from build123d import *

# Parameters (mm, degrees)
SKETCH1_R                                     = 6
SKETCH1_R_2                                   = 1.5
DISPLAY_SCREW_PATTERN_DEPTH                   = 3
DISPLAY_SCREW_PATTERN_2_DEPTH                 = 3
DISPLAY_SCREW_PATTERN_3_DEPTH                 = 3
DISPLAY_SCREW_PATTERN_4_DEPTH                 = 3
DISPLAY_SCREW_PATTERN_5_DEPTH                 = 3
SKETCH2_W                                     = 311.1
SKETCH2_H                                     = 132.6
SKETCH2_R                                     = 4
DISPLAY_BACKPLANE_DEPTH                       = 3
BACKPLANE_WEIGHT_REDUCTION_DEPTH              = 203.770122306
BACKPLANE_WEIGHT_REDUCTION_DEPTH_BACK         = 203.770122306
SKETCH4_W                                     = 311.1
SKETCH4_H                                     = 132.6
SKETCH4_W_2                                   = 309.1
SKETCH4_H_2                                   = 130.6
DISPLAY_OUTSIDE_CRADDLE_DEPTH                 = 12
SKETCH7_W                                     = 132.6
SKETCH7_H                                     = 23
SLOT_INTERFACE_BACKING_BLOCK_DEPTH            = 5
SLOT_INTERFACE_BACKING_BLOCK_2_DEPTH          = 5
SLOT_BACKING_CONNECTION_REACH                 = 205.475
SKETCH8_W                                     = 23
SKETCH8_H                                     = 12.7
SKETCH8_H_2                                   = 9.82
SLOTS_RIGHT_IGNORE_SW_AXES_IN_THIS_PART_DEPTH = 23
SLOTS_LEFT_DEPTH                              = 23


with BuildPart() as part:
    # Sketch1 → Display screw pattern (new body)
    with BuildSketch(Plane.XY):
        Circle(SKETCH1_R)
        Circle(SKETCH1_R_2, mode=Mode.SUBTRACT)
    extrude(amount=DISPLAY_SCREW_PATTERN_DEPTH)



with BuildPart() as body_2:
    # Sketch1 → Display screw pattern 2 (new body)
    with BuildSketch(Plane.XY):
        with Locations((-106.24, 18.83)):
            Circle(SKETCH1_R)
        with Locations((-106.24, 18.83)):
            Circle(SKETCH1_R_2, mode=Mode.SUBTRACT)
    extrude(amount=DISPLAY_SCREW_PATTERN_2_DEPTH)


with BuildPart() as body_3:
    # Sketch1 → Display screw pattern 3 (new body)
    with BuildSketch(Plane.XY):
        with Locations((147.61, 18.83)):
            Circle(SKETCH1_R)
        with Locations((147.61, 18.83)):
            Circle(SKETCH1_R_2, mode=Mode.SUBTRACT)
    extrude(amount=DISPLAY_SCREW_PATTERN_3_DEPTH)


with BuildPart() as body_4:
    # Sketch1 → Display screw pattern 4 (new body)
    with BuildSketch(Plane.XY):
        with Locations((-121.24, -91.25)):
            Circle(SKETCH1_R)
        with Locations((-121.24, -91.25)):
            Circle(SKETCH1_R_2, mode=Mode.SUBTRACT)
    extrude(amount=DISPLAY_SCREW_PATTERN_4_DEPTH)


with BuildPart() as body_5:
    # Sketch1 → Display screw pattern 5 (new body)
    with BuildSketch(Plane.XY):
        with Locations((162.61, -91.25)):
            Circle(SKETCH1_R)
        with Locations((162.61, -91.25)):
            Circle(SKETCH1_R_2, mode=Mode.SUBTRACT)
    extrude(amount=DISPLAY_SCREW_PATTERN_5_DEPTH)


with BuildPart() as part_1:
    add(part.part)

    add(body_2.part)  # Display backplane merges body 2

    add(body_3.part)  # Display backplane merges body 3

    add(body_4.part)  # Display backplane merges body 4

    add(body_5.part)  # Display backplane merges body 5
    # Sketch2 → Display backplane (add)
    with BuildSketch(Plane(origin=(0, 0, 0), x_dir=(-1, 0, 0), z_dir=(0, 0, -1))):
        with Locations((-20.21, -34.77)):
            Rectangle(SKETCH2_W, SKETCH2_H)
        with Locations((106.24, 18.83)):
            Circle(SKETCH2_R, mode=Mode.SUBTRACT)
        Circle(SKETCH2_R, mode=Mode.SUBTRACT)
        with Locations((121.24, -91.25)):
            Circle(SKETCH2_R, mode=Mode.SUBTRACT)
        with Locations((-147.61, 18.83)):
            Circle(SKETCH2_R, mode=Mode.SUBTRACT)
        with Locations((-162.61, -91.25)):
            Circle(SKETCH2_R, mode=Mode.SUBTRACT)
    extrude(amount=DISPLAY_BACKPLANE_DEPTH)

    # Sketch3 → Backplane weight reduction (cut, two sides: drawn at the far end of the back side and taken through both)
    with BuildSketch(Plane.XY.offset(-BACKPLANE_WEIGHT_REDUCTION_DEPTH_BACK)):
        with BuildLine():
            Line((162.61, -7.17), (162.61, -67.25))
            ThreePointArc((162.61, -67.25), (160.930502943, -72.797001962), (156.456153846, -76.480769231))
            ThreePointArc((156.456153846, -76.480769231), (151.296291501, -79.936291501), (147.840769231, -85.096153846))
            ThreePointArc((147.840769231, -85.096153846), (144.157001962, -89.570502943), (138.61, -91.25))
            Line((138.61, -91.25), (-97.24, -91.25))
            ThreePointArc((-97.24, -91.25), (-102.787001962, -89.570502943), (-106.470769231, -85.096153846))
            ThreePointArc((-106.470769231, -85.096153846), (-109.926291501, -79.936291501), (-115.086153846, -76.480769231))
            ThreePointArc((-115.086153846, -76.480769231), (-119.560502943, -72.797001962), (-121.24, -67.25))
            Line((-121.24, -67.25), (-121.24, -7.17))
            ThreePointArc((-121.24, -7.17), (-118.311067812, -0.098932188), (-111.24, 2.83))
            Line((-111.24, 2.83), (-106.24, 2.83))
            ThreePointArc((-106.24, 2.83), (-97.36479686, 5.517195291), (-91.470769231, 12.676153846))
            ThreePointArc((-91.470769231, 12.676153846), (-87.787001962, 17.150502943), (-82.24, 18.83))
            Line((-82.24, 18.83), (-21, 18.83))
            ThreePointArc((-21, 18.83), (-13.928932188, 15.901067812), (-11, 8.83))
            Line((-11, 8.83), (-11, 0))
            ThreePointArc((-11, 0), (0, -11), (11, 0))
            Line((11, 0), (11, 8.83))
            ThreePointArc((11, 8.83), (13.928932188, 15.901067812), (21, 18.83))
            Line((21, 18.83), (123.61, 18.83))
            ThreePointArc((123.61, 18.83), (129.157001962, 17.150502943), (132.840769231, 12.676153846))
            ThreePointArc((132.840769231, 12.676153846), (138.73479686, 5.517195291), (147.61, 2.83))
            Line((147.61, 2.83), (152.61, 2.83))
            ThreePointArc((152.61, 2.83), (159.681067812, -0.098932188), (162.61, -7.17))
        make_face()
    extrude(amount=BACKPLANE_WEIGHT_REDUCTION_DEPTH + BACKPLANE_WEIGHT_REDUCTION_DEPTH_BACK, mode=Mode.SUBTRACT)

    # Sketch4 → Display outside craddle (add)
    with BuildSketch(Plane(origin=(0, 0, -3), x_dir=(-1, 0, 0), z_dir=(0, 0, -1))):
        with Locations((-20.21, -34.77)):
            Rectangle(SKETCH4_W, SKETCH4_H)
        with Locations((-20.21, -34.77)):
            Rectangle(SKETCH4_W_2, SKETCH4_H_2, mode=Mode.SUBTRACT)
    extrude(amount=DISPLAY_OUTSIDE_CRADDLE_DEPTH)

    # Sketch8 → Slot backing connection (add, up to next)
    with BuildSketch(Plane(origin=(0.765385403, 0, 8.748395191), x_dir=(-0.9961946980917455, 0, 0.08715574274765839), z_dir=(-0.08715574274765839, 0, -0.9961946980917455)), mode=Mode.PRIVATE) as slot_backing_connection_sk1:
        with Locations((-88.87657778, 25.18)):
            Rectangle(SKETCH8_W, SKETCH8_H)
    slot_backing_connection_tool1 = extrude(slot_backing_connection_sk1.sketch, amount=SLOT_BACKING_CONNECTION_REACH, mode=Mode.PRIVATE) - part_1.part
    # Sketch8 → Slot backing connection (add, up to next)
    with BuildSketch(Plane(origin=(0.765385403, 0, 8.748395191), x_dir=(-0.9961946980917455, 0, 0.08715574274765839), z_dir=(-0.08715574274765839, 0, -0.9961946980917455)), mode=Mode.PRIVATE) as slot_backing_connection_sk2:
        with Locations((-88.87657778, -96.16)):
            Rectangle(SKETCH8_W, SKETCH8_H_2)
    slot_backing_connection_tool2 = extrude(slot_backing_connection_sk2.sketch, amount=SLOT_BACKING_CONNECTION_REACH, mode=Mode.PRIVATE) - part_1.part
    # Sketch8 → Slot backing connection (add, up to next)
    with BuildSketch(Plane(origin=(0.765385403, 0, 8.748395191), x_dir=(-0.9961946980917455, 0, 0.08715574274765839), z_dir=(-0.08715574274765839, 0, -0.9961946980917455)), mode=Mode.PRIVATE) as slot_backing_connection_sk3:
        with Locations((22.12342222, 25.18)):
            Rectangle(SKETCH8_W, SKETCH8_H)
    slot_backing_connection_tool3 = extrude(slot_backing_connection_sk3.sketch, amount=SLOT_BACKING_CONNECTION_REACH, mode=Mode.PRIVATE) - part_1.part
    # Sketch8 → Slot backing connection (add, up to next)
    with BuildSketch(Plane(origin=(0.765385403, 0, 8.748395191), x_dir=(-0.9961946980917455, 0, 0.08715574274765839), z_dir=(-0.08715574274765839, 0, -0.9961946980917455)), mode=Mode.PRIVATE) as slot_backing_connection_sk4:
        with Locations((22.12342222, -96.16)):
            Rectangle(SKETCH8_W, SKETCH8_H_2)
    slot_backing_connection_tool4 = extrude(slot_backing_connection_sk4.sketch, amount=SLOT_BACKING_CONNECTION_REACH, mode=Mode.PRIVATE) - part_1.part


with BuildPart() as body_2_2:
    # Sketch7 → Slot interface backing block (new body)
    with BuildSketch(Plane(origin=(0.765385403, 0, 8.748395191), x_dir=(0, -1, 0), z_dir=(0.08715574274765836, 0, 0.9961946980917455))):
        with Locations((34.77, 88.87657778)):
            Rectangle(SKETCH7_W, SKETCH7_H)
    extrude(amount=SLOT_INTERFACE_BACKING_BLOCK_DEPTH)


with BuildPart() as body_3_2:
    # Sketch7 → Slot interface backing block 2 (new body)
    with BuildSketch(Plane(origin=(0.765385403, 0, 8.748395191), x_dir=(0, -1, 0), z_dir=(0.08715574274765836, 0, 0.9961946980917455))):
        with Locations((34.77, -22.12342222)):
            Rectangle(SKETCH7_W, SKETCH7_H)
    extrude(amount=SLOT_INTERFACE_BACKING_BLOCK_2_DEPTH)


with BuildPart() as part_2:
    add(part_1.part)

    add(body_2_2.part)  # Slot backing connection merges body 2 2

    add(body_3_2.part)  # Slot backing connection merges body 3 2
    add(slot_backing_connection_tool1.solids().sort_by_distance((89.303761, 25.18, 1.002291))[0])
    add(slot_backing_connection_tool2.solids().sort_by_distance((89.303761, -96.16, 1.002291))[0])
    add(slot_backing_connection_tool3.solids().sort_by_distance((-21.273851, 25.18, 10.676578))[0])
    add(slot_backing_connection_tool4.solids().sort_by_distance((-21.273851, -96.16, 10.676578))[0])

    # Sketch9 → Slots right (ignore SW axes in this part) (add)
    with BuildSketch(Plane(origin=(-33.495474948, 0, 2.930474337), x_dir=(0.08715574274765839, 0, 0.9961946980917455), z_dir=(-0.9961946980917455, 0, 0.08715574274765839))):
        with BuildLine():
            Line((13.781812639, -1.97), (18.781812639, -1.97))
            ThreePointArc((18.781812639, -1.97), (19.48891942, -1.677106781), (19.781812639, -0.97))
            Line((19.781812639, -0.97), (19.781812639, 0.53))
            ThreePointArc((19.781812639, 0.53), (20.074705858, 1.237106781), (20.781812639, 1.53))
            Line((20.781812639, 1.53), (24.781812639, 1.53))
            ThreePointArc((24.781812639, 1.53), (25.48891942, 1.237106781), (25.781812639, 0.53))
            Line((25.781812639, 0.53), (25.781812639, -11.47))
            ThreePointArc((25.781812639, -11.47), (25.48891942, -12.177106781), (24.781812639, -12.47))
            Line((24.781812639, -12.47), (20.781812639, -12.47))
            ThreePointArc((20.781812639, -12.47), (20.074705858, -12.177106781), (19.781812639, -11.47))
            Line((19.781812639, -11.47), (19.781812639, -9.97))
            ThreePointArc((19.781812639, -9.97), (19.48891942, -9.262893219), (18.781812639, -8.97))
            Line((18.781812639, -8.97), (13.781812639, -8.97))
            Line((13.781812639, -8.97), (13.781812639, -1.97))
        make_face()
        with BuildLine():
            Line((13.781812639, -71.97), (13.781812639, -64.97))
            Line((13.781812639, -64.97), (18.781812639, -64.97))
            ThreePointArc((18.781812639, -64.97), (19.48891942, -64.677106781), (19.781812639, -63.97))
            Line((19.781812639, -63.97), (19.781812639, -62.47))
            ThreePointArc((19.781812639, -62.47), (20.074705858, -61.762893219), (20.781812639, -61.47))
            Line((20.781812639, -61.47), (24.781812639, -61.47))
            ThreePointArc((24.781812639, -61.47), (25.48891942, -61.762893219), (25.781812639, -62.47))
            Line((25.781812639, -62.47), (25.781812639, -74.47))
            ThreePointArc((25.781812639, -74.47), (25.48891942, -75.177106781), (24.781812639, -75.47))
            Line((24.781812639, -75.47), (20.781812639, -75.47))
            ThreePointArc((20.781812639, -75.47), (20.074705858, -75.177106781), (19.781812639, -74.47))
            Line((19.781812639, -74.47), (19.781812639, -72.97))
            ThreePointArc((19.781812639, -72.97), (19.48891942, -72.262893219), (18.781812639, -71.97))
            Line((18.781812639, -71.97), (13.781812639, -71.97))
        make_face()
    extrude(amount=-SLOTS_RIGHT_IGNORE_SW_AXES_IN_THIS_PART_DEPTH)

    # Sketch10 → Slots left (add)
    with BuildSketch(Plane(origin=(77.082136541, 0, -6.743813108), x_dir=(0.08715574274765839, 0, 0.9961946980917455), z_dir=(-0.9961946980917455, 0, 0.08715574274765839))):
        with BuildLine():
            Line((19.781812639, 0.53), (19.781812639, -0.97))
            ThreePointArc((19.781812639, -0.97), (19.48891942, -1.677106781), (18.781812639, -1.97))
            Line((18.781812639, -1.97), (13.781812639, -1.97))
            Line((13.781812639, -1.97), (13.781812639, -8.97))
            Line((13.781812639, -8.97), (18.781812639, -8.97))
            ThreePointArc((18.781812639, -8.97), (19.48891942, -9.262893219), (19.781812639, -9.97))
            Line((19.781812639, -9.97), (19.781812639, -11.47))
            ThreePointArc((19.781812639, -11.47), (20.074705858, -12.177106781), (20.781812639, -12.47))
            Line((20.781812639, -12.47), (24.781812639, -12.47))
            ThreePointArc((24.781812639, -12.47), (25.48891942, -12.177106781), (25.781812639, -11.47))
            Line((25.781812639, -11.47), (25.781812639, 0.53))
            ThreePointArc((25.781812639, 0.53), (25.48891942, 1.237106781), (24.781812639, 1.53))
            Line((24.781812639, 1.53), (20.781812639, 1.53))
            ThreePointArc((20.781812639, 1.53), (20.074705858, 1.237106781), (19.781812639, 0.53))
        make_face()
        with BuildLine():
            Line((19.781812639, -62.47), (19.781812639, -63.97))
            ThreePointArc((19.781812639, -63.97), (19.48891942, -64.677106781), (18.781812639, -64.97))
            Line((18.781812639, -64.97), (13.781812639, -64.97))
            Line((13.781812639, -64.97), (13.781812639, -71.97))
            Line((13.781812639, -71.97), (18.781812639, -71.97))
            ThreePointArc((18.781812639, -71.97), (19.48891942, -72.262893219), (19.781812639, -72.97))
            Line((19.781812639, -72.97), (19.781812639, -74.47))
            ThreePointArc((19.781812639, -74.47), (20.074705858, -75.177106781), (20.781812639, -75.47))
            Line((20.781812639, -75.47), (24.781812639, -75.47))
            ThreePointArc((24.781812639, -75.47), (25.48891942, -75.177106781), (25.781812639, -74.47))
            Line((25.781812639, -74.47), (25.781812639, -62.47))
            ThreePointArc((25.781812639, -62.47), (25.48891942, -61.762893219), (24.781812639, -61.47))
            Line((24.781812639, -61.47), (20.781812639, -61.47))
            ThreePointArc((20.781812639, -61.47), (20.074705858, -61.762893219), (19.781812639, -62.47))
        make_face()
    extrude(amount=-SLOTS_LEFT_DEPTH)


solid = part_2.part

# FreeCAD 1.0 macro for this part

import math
import FreeCAD as App
import Part
import Sketcher

V = App.Vector

doc = App.newDocument("Part")
body = doc.addObject("PartDesign::Body", "Body")

# Sketch on XY plane
sketch1 = body.newObject("Sketcher::SketchObject", "Sketch")
sketch1.AttachmentSupport = (doc.getObject("XY_Plane"), [""])
sketch1.MapMode = "FlatFace"
sketch1.addGeometry(Part.Circle(V(0, 0, 0), V(0, 0, 1), 6), False)
sketch1.addGeometry(Part.Circle(V(0, 0, 0), V(0, 0, 1), 1.5), False)
sketch1.addConstraint(Sketcher.Constraint("Coincident", 0, 3, -1, 1))
sketch1.addConstraint(Sketcher.Constraint("Coincident", 1, 3, -1, 1))
sketch1.addConstraint(Sketcher.Constraint("Diameter", 0, 12.0))
sketch1.addConstraint(Sketcher.Constraint("Diameter", 1, 3.0))
pad1 = body.newObject("PartDesign::Pad", "Pad")
pad1.Profile = sketch1
pad1.Length = 3
body2 = doc.addObject("PartDesign::Body", "Body001")

# Sketch on XY plane
sketch2 = body2.newObject("Sketcher::SketchObject", "Sketch001")
sketch2.AttachmentSupport = (doc.getObject("XY_Plane001"), [""])
sketch2.MapMode = "FlatFace"
sketch2.addGeometry(Part.Circle(V(-106.2, 18.8, 0), V(0, 0, 1), 6), False)
sketch2.addGeometry(Part.Circle(V(-106.2, 18.8, 0), V(0, 0, 1), 1.5), False)
sketch2.addConstraint(Sketcher.Constraint("Coincident", 1, 3, 0, 3))
sketch2.addConstraint(Sketcher.Constraint("Diameter", 0, 12.0))
sketch2.addConstraint(Sketcher.Constraint("Diameter", 1, 3.0))
sketch2.addConstraint(Sketcher.Constraint("DistanceX", 0, 3, -1, 1, 106.24))
sketch2.addConstraint(Sketcher.Constraint("DistanceY", -1, 1, 0, 3, 18.83))
pad2 = body2.newObject("PartDesign::Pad", "Pad001")
pad2.Profile = sketch2
pad2.Length = 3
body3 = doc.addObject("PartDesign::Body", "Body002")

# Sketch on XY plane
sketch3 = body3.newObject("Sketcher::SketchObject", "Sketch002")
sketch3.AttachmentSupport = (doc.getObject("XY_Plane002"), [""])
sketch3.MapMode = "FlatFace"
sketch3.addGeometry(Part.Circle(V(147.6, 18.8, 0), V(0, 0, 1), 6), False)
sketch3.addGeometry(Part.Circle(V(147.6, 18.8, 0), V(0, 0, 1), 1.5), False)
sketch3.addConstraint(Sketcher.Constraint("Coincident", 1, 3, 0, 3))
sketch3.addConstraint(Sketcher.Constraint("Diameter", 0, 12.0))
sketch3.addConstraint(Sketcher.Constraint("Diameter", 1, 3.0))
sketch3.addConstraint(Sketcher.Constraint("DistanceX", -1, 1, 0, 3, 147.61))
sketch3.addConstraint(Sketcher.Constraint("DistanceY", -1, 1, 0, 3, 18.83))
pad3 = body3.newObject("PartDesign::Pad", "Pad002")
pad3.Profile = sketch3
pad3.Length = 3
body4 = doc.addObject("PartDesign::Body", "Body003")

# Sketch on XY plane
sketch4 = body4.newObject("Sketcher::SketchObject", "Sketch003")
sketch4.AttachmentSupport = (doc.getObject("XY_Plane003"), [""])
sketch4.MapMode = "FlatFace"
sketch4.addGeometry(Part.Circle(V(-121.2, -91.2, 0), V(0, 0, 1), 6), False)
sketch4.addGeometry(Part.Circle(V(-121.2, -91.2, 0), V(0, 0, 1), 1.5), False)
sketch4.addConstraint(Sketcher.Constraint("Coincident", 1, 3, 0, 3))
sketch4.addConstraint(Sketcher.Constraint("Diameter", 0, 12.0))
sketch4.addConstraint(Sketcher.Constraint("Diameter", 1, 3.0))
sketch4.addConstraint(Sketcher.Constraint("DistanceX", 0, 3, -1, 1, 121.24))
sketch4.addConstraint(Sketcher.Constraint("DistanceY", 0, 3, -1, 1, 91.25))
pad4 = body4.newObject("PartDesign::Pad", "Pad003")
pad4.Profile = sketch4
pad4.Length = 3
body5 = doc.addObject("PartDesign::Body", "Body004")

# Sketch on XY plane
sketch5 = body5.newObject("Sketcher::SketchObject", "Sketch004")
sketch5.AttachmentSupport = (doc.getObject("XY_Plane004"), [""])
sketch5.MapMode = "FlatFace"
sketch5.addGeometry(Part.Circle(V(162.6, -91.2, 0), V(0, 0, 1), 6), False)
sketch5.addGeometry(Part.Circle(V(162.6, -91.2, 0), V(0, 0, 1), 1.5), False)
sketch5.addConstraint(Sketcher.Constraint("Coincident", 1, 3, 0, 3))
sketch5.addConstraint(Sketcher.Constraint("Diameter", 0, 12.0))
sketch5.addConstraint(Sketcher.Constraint("Diameter", 1, 3.0))
sketch5.addConstraint(Sketcher.Constraint("DistanceX", -1, 1, 0, 3, 162.61))
sketch5.addConstraint(Sketcher.Constraint("DistanceY", 0, 3, -1, 1, 91.25))
pad5 = body5.newObject("PartDesign::Pad", "Pad004")
pad5.Profile = sketch5
pad5.Length = 3
body.AllowCompound = True
doc.recompute()

boolean = body.newObject("PartDesign::Boolean", "Boolean")
boolean.Type = "Fuse"
boolean.addObjects([body2])
doc.recompute()

boolean2 = body.newObject("PartDesign::Boolean", "Boolean001")
boolean2.Type = "Fuse"
boolean2.addObjects([body3])
doc.recompute()

boolean3 = body.newObject("PartDesign::Boolean", "Boolean002")
boolean3.Type = "Fuse"
boolean3.addObjects([body4])
doc.recompute()

boolean4 = body.newObject("PartDesign::Boolean", "Boolean003")
boolean4.Type = "Fuse"
boolean4.addObjects([body5])

# Sketch on XY plane
sketch6 = body.newObject("Sketcher::SketchObject", "Sketch005")
sketch6.AttachmentSupport = (doc.getObject("XY_Plane"), [""])
sketch6.MapMode = "FlatFace"
sketch6.addGeometry(Part.LineSegment(V(175.8, 31.5, 0), V(175.8, -101.1, 0)), False)
sketch6.addGeometry(Part.LineSegment(V(175.8, -101.1, 0), V(-135.3, -101.1, 0)), False)
sketch6.addGeometry(Part.LineSegment(V(-135.3, -101.1, 0), V(-135.3, 31.5, 0)), False)
sketch6.addGeometry(Part.LineSegment(V(-135.3, 31.5, 0), V(175.8, 31.5, 0)), False)
sketch6.addGeometry(Part.Circle(V(162.6, -91.2, 0), V(0, 0, 1), 4), False)
sketch6.addGeometry(Part.Circle(V(-121.2, -91.2, 0), V(0, 0, 1), 4), False)
sketch6.addGeometry(Part.Circle(V(147.6, 18.8, 0), V(0, 0, 1), 4), False)
sketch6.addGeometry(Part.Circle(V(0, 0, 0), V(0, 0, 1), 4), False)
sketch6.addGeometry(Part.Circle(V(-106.2, 18.8, 0), V(0, 0, 1), 4), False)
sketch6.addConstraint(Sketcher.Constraint("Coincident", 0, 2, 1, 1))
sketch6.addConstraint(Sketcher.Constraint("Coincident", 1, 2, 2, 1))
sketch6.addConstraint(Sketcher.Constraint("Coincident", 2, 2, 3, 1))
sketch6.addConstraint(Sketcher.Constraint("Coincident", 3, 2, 0, 1))
sketch6.addConstraint(Sketcher.Constraint("Vertical", 0))
sketch6.addConstraint(Sketcher.Constraint("Horizontal", 1))
sketch6.addConstraint(Sketcher.Constraint("Vertical", 2))
sketch6.addConstraint(Sketcher.Constraint("Horizontal", 3))
sketch6.addConstraint(Sketcher.Constraint("Coincident", 7, 3, -1, 1))
sketch6.addConstraint(Sketcher.Constraint("Equal", 4, 5))
sketch6.addConstraint(Sketcher.Constraint("Equal", 5, 6))
sketch6.addConstraint(Sketcher.Constraint("Equal", 6, 7))
sketch6.addConstraint(Sketcher.Constraint("Equal", 7, 8))
sketch6.addConstraint(Sketcher.Constraint("Horizontal", 4, 3, 5, 3))
sketch6.addConstraint(Sketcher.Constraint("Horizontal", 6, 3, 8, 3))
sketch6.addConstraint(Sketcher.Constraint("Diameter", 4, 8.0))
sketch6.addConstraint(Sketcher.Constraint("DistanceX", 1, 2, 1, 1, 311.1))
sketch6.addConstraint(Sketcher.Constraint("DistanceY", 0, 2, 0, 1, 132.6))
sketch6.addConstraint(Sketcher.Constraint("DistanceX", 6, 3, 4, 3, 15.0))
sketch6.addConstraint(Sketcher.Constraint("DistanceX", 5, 3, 8, 3, 15.0))
sketch6.addConstraint(Sketcher.Constraint("DistanceX", 5, 3, 0, 2, 297.0))
sketch6.addConstraint(Sketcher.Constraint("DistanceY", 0, 2, 6, 3, 119.9))
sketch6.addConstraint(Sketcher.Constraint("DistanceX", -1, 1, 4, 3, 162.61))
sketch6.addConstraint(Sketcher.Constraint("DistanceY", 4, 3, -1, 1, 91.25))
sketch6.addConstraint(Sketcher.Constraint("DistanceX", 5, 3, -1, 1, 121.24))
sketch6.addConstraint(Sketcher.Constraint("DistanceY", -1, 1, 6, 3, 18.83))
pad6 = body.newObject("PartDesign::Pad", "Pad005")
pad6.Profile = sketch6
pad6.Length = 3
pad6.Reversed = True

# Sketch on XY plane
sketch7 = body.newObject("Sketcher::SketchObject", "Sketch006")
sketch7.AttachmentSupport = (doc.getObject("XY_Plane"), [""])
sketch7.MapMode = "FlatFace"
sketch7.addGeometry(Part.LineSegment(V(163, -67, 0), V(163, -7, 0)), False)
sketch7.addGeometry(Part.ArcOfCircle(Part.Circle(V(153, -7, 0), V(0, 0, 1), 10), math.radians(0), math.radians(90)), False)
sketch7.addGeometry(Part.LineSegment(V(153, 3, 0), V(148, 3, 0)), False)
sketch7.addGeometry(Part.ArcOfCircle(Part.Circle(V(148, 19, 0), V(0, 0, 1), 16), math.radians(-157), math.radians(-90)), False)
sketch7.addGeometry(Part.ArcOfCircle(Part.Circle(V(124, 9, 0), V(0, 0, 1), 10), math.radians(23), math.radians(90)), False)
sketch7.addGeometry(Part.LineSegment(V(124, 19, 0), V(21, 19, 0)), False)
sketch7.addGeometry(Part.ArcOfCircle(Part.Circle(V(21, 9, 0), V(0, 0, 1), 10), math.radians(90), math.radians(180)), False)
sketch7.addGeometry(Part.LineSegment(V(11, 9, 0), V(11, 0, 0)), False)
sketch7.addGeometry(Part.ArcOfCircle(Part.Circle(V(0, 0, 0), V(0, 0, 1), 11), math.radians(180), math.radians(360)), False)
sketch7.addGeometry(Part.LineSegment(V(-11, 0, 0), V(-11, 9, 0)), False)
sketch7.addGeometry(Part.ArcOfCircle(Part.Circle(V(-21, 9, 0), V(0, 0, 1), 10), math.radians(0), math.radians(90)), False)
sketch7.addGeometry(Part.LineSegment(V(-21, 19, 0), V(-82, 19, 0)), False)
sketch7.addGeometry(Part.ArcOfCircle(Part.Circle(V(-82, 9, 0), V(0, 0, 1), 10), math.radians(90), math.radians(157)), False)
sketch7.addGeometry(Part.ArcOfCircle(Part.Circle(V(-106, 19, 0), V(0, 0, 1), 16), math.radians(-90), math.radians(-23)), False)
sketch7.addGeometry(Part.LineSegment(V(-106, 3, 0), V(-111, 3, 0)), False)
sketch7.addGeometry(Part.ArcOfCircle(Part.Circle(V(-111, -7, 0), V(0, 0, 1), 10), math.radians(90), math.radians(180)), False)
sketch7.addGeometry(Part.LineSegment(V(-121, -7, 0), V(-121, -67, 0)), False)
sketch7.addGeometry(Part.ArcOfCircle(Part.Circle(V(-111, -67, 0), V(0, 0, 1), 10), math.radians(-180), math.radians(-113)), False)
sketch7.addGeometry(Part.ArcOfCircle(Part.Circle(V(-121, -91, 0), V(0, 0, 1), 16), math.radians(23), math.radians(67)), False)
sketch7.addGeometry(Part.ArcOfCircle(Part.Circle(V(-97, -81, 0), V(0, 0, 1), 10), math.radians(-157), math.radians(-90)), False)
sketch7.addGeometry(Part.LineSegment(V(-97, -91, 0), V(139, -91, 0)), False)
sketch7.addGeometry(Part.ArcOfCircle(Part.Circle(V(139, -81, 0), V(0, 0, 1), 10), math.radians(-90), math.radians(-23)), False)
sketch7.addGeometry(Part.ArcOfCircle(Part.Circle(V(163, -91, 0), V(0, 0, 1), 16), math.radians(113), math.radians(157)), False)
sketch7.addGeometry(Part.ArcOfCircle(Part.Circle(V(153, -67, 0), V(0, 0, 1), 10), math.radians(-67), math.radians(0)), False)
sketch7.addConstraint(Sketcher.Constraint("Tangent", 0, 2, 1, 1))
sketch7.addConstraint(Sketcher.Constraint("Tangent", 1, 2, 2, 1))
sketch7.addConstraint(Sketcher.Constraint("Tangent", 2, 2, 3, 2))
sketch7.addConstraint(Sketcher.Constraint("Tangent", 3, 1, 4, 1))
sketch7.addConstraint(Sketcher.Constraint("Tangent", 4, 2, 5, 1))
sketch7.addConstraint(Sketcher.Constraint("Tangent", 5, 2, 6, 1))
sketch7.addConstraint(Sketcher.Constraint("Tangent", 6, 2, 7, 1))
sketch7.addConstraint(Sketcher.Constraint("Tangent", 7, 2, 8, 2))
sketch7.addConstraint(Sketcher.Constraint("Tangent", 8, 1, 9, 1))
sketch7.addConstraint(Sketcher.Constraint("Tangent", 9, 2, 10, 1))
sketch7.addConstraint(Sketcher.Constraint("Tangent", 10, 2, 11, 1))
sketch7.addConstraint(Sketcher.Constraint("Tangent", 11, 2, 12, 1))
sketch7.addConstraint(Sketcher.Constraint("Tangent", 12, 2, 13, 2))
sketch7.addConstraint(Sketcher.Constraint("Tangent", 13, 1, 14, 1))
sketch7.addConstraint(Sketcher.Constraint("Tangent", 14, 2, 15, 1))
sketch7.addConstraint(Sketcher.Constraint("Tangent", 15, 2, 16, 1))
sketch7.addConstraint(Sketcher.Constraint("Tangent", 16, 2, 17, 1))
sketch7.addConstraint(Sketcher.Constraint("Tangent", 17, 2, 18, 2))
sketch7.addConstraint(Sketcher.Constraint("Tangent", 18, 1, 19, 1))
sketch7.addConstraint(Sketcher.Constraint("Tangent", 19, 2, 20, 1))
sketch7.addConstraint(Sketcher.Constraint("Tangent", 20, 2, 21, 1))
sketch7.addConstraint(Sketcher.Constraint("Tangent", 21, 2, 22, 2))
sketch7.addConstraint(Sketcher.Constraint("Tangent", 22, 1, 23, 1))
sketch7.addConstraint(Sketcher.Constraint("Tangent", 23, 2, 0, 1))
sketch7.addConstraint(Sketcher.Constraint("Vertical", 0))
sketch7.addConstraint(Sketcher.Constraint("Horizontal", 2))
sketch7.addConstraint(Sketcher.Constraint("Horizontal", 5))
sketch7.addConstraint(Sketcher.Constraint("Vertical", 7))
sketch7.addConstraint(Sketcher.Constraint("Vertical", 9))
sketch7.addConstraint(Sketcher.Constraint("Horizontal", 11))
sketch7.addConstraint(Sketcher.Constraint("Horizontal", 14))
sketch7.addConstraint(Sketcher.Constraint("Vertical", 16))
sketch7.addConstraint(Sketcher.Constraint("Horizontal", 20))
sketch7.addConstraint(Sketcher.Constraint("Coincident", 8, 3, -1, 1))
sketch7.addConstraint(Sketcher.Constraint("Equal", 1, 4))
sketch7.addConstraint(Sketcher.Constraint("Equal", 4, 6))
sketch7.addConstraint(Sketcher.Constraint("Equal", 6, 10))
sketch7.addConstraint(Sketcher.Constraint("Equal", 10, 12))
sketch7.addConstraint(Sketcher.Constraint("Equal", 3, 13))
sketch7.addConstraint(Sketcher.Constraint("Equal", 12, 15))
sketch7.addConstraint(Sketcher.Constraint("Equal", 15, 17))
sketch7.addConstraint(Sketcher.Constraint("Equal", 13, 18))
sketch7.addConstraint(Sketcher.Constraint("Equal", 17, 19))
sketch7.addConstraint(Sketcher.Constraint("Equal", 19, 21))
sketch7.addConstraint(Sketcher.Constraint("Equal", 18, 22))
sketch7.addConstraint(Sketcher.Constraint("Equal", 21, 23))
sketch7.addConstraint(Sketcher.Constraint("Horizontal", 6, 3, 10, 3))
sketch7.addConstraint(Sketcher.Constraint("Horizontal", 3, 3, 13, 3))
sketch7.addConstraint(Sketcher.Constraint("Horizontal", 18, 3, 22, 3))
sketch7.addConstraint(Sketcher.Constraint("Horizontal", 17, 3, 23, 3))
sketch7.addConstraint(Sketcher.Constraint("Horizontal", 13, 3, 4, 2))
sketch7.addConstraint(Sketcher.Constraint("Horizontal", 22, 3, 19, 2))
sketch7.addConstraint(Sketcher.Constraint("Vertical", 22, 3, 0, 2))
sketch7.addConstraint(Sketcher.Constraint("Equal", 2, 14))
sketch7.addConstraint(Sketcher.Constraint("Radius", 1, 10.0))
sketch7.addConstraint(Sketcher.Constraint("Radius", 3, 16.0))
sketch7.addConstraint(Sketcher.Constraint("Radius", 8, 11.0))
sketch7.addConstraint(Sketcher.Constraint("DistanceX", 2, 2, 2, 1, 5.0))
sketch7.addConstraint(Sketcher.Constraint("DistanceX", 5, 2, 5, 1, 102.61))
sketch7.addConstraint(Sketcher.Constraint("DistanceX", 11, 2, 11, 1, 61.24))
sketch7.addConstraint(Sketcher.Constraint("DistanceY", 0, 1, 0, 2, 60.08))
sketch7.addConstraint(Sketcher.Constraint("DistanceY", 7, 2, 7, 1, 8.83))
pocket1 = body.newObject("PartDesign::Pocket", "Pocket")
pocket1.Profile = sketch7
pocket1.Type = "ThroughAll"
pocket1.Midplane = True

# Sketch on XY plane
sketch8 = body.newObject("Sketcher::SketchObject", "Sketch007")
sketch8.AttachmentSupport = (doc.getObject("XY_Plane"), [""])
sketch8.MapMode = "FlatFace"
sketch8.AttachmentOffset = App.Placement(V(0, 0, -3), App.Rotation())
sketch8.addGeometry(Part.LineSegment(V(176, 32, 0), V(176, -101, 0)), False)
sketch8.addGeometry(Part.LineSegment(V(176, -101, 0), V(-135, -101, 0)), False)
sketch8.addGeometry(Part.LineSegment(V(-135, -101, 0), V(-135, 32, 0)), False)
sketch8.addGeometry(Part.LineSegment(V(-135, 32, 0), V(176, 32, 0)), False)
sketch8.addGeometry(Part.LineSegment(V(-134, -100, 0), V(175, -100, 0)), False)
sketch8.addGeometry(Part.LineSegment(V(175, -100, 0), V(175, 31, 0)), False)
sketch8.addGeometry(Part.LineSegment(V(175, 31, 0), V(-134, 31, 0)), False)
sketch8.addGeometry(Part.LineSegment(V(-134, 31, 0), V(-134, -100, 0)), False)
sketch8.addConstraint(Sketcher.Constraint("Coincident", 0, 2, 1, 1))
sketch8.addConstraint(Sketcher.Constraint("Coincident", 1, 2, 2, 1))
sketch8.addConstraint(Sketcher.Constraint("Coincident", 2, 2, 3, 1))
sketch8.addConstraint(Sketcher.Constraint("Coincident", 3, 2, 0, 1))
sketch8.addConstraint(Sketcher.Constraint("Coincident", 4, 2, 5, 1))
sketch8.addConstraint(Sketcher.Constraint("Coincident", 5, 2, 6, 1))
sketch8.addConstraint(Sketcher.Constraint("Coincident", 6, 2, 7, 1))
sketch8.addConstraint(Sketcher.Constraint("Coincident", 7, 2, 4, 1))
sketch8.addConstraint(Sketcher.Constraint("Vertical", 0))
sketch8.addConstraint(Sketcher.Constraint("Horizontal", 1))
sketch8.addConstraint(Sketcher.Constraint("Vertical", 2))
sketch8.addConstraint(Sketcher.Constraint("Horizontal", 3))
sketch8.addConstraint(Sketcher.Constraint("Horizontal", 4))
sketch8.addConstraint(Sketcher.Constraint("Vertical", 5))
sketch8.addConstraint(Sketcher.Constraint("Horizontal", 6))
sketch8.addConstraint(Sketcher.Constraint("Vertical", 7))
sketch8.addConstraint(Sketcher.Constraint("DistanceX", 1, 2, 1, 1, 311.1))
sketch8.addConstraint(Sketcher.Constraint("DistanceX", 4, 1, 4, 2, 309.1))
sketch8.addConstraint(Sketcher.Constraint("DistanceY", 0, 2, 0, 1, 132.6))
sketch8.addConstraint(Sketcher.Constraint("DistanceY", 5, 1, 5, 2, 130.6))
sketch8.addConstraint(Sketcher.Constraint("DistanceX", 4, 2, 0, 2, 1.0))
sketch8.addConstraint(Sketcher.Constraint("DistanceY", 0, 2, 4, 2, 1.0))
sketch8.addConstraint(Sketcher.Constraint("DistanceX", -1, 1, 0, 2, 175.76))
sketch8.addConstraint(Sketcher.Constraint("DistanceY", 0, 2, -1, 1, 101.07))
pad7 = body.newObject("PartDesign::Pad", "Pad006")
pad7.Profile = sketch8
pad7.Length = 12
pad7.Reversed = True
body6 = doc.addObject("PartDesign::Body", "Body005")

# Sketch on an angled plane
sketch9 = body6.newObject("Sketcher::SketchObject", "Sketch008")
sketch9.Placement = App.Placement(V(0.765385, 0, 8.748395), App.Rotation(V(0, -1, 0), V(0.996194698, 0, -0.087155743), V(0.087155743, 0, 0.996194698), "ZXY"))
sketch9.addGeometry(Part.LineSegment(V(-32, 100, 0), V(-32, 77, 0)), False)
sketch9.addGeometry(Part.LineSegment(V(-32, 77, 0), V(101, 77, 0)), False)
sketch9.addGeometry(Part.LineSegment(V(101, 77, 0), V(101, 100, 0)), False)
sketch9.addGeometry(Part.LineSegment(V(101, 100, 0), V(-32, 100, 0)), False)
sketch9.addConstraint(Sketcher.Constraint("Coincident", 0, 2, 1, 1))
sketch9.addConstraint(Sketcher.Constraint("Coincident", 1, 2, 2, 1))
sketch9.addConstraint(Sketcher.Constraint("Coincident", 2, 2, 3, 1))
sketch9.addConstraint(Sketcher.Constraint("Coincident", 3, 2, 0, 1))
sketch9.addConstraint(Sketcher.Constraint("Vertical", 0))
sketch9.addConstraint(Sketcher.Constraint("Horizontal", 1))
sketch9.addConstraint(Sketcher.Constraint("Vertical", 2))
sketch9.addConstraint(Sketcher.Constraint("Horizontal", 3))
sketch9.addConstraint(Sketcher.Constraint("DistanceY", 0, 2, 0, 1, 23.0))
sketch9.addConstraint(Sketcher.Constraint("DistanceX", 1, 1, 1, 2, 132.6))
sketch9.addConstraint(Sketcher.Constraint("DistanceX", 0, 2, -1, 1, 31.53))
sketch9.addConstraint(Sketcher.Constraint("DistanceY", -1, 1, 0, 2, 77.376578))
pad8 = body6.newObject("PartDesign::Pad", "Pad007")
pad8.Profile = sketch9
pad8.Length = 5
body7 = doc.addObject("PartDesign::Body", "Body006")

# Sketch on an angled plane
sketch10 = body7.newObject("Sketcher::SketchObject", "Sketch009")
sketch10.Placement = App.Placement(V(0.765385, 0, 8.748395), App.Rotation(V(0, -1, 0), V(0.996194698, 0, -0.087155743), V(0.087155743, 0, 0.996194698), "ZXY"))
sketch10.addGeometry(Part.LineSegment(V(-32, -11, 0), V(-32, -34, 0)), False)
sketch10.addGeometry(Part.LineSegment(V(-32, -34, 0), V(101, -34, 0)), False)
sketch10.addGeometry(Part.LineSegment(V(101, -34, 0), V(101, -11, 0)), False)
sketch10.addGeometry(Part.LineSegment(V(101, -11, 0), V(-32, -11, 0)), False)
sketch10.addConstraint(Sketcher.Constraint("Coincident", 0, 2, 1, 1))
sketch10.addConstraint(Sketcher.Constraint("Coincident", 1, 2, 2, 1))
sketch10.addConstraint(Sketcher.Constraint("Coincident", 2, 2, 3, 1))
sketch10.addConstraint(Sketcher.Constraint("Coincident", 3, 2, 0, 1))
sketch10.addConstraint(Sketcher.Constraint("Vertical", 0))
sketch10.addConstraint(Sketcher.Constraint("Horizontal", 1))
sketch10.addConstraint(Sketcher.Constraint("Vertical", 2))
sketch10.addConstraint(Sketcher.Constraint("Horizontal", 3))
sketch10.addConstraint(Sketcher.Constraint("DistanceY", 0, 2, 0, 1, 23.0))
sketch10.addConstraint(Sketcher.Constraint("DistanceX", 1, 1, 1, 2, 132.6))
sketch10.addConstraint(Sketcher.Constraint("DistanceX", 0, 2, -1, 1, 31.53))
sketch10.addConstraint(Sketcher.Constraint("DistanceY", 0, 2, -1, 1, 33.623422))
pad9 = body7.newObject("PartDesign::Pad", "Pad008")
pad9.Profile = sketch10
pad9.Length = 5
body.AllowCompound = True
doc.recompute()

boolean5 = body.newObject("PartDesign::Boolean", "Boolean004")
boolean5.Type = "Fuse"
boolean5.addObjects([body6])
doc.recompute()

boolean6 = body.newObject("PartDesign::Boolean", "Boolean005")
boolean6.Type = "Fuse"
boolean6.addObjects([body7])

# Sketch on an angled plane
sketch11 = body.newObject("Sketcher::SketchObject", "Sketch010")
sketch11.Placement = App.Placement(V(0.765385, 0, 8.748395), App.Rotation(V(-0.996194698, 0, 0.087155743), V(0, 1, 0), V(-0.087155743, 0, -0.996194698), "ZXY"))
sketch11.addGeometry(Part.LineSegment(V(-100, 32, 0), V(-100, 19, 0)), False)
sketch11.addGeometry(Part.LineSegment(V(-100, 19, 0), V(-77, 19, 0)), False)
sketch11.addGeometry(Part.LineSegment(V(-77, 19, 0), V(-77, 32, 0)), False)
sketch11.addGeometry(Part.LineSegment(V(-77, 32, 0), V(-100, 32, 0)), False)
sketch11.addConstraint(Sketcher.Constraint("Coincident", 0, 2, 1, 1))
sketch11.addConstraint(Sketcher.Constraint("Coincident", 1, 2, 2, 1))
sketch11.addConstraint(Sketcher.Constraint("Coincident", 2, 2, 3, 1))
sketch11.addConstraint(Sketcher.Constraint("Coincident", 3, 2, 0, 1))
sketch11.addConstraint(Sketcher.Constraint("Vertical", 0))
sketch11.addConstraint(Sketcher.Constraint("Horizontal", 1))
sketch11.addConstraint(Sketcher.Constraint("Vertical", 2))
sketch11.addConstraint(Sketcher.Constraint("Horizontal", 3))
sketch11.addConstraint(Sketcher.Constraint("DistanceX", 1, 1, 1, 2, 23.0))
sketch11.addConstraint(Sketcher.Constraint("DistanceY", 0, 2, 0, 1, 12.7))
sketch11.addConstraint(Sketcher.Constraint("DistanceY", -1, 1, 0, 2, 18.83))
sketch11.addConstraint(Sketcher.Constraint("DistanceX", 0, 2, -1, 1, 100.376578))
pad10 = body.newObject("PartDesign::Pad", "Pad009")
pad10.Profile = sketch11
pad10.Length = 2.012239

# Sketch on an angled plane
sketch12 = body.newObject("Sketcher::SketchObject", "Sketch011")
sketch12.Placement = App.Placement(V(0.765385, 0, 8.748395), App.Rotation(V(-0.996194698, 0, 0.087155743), V(0, 1, 0), V(-0.087155743, 0, -0.996194698), "ZXY"))
sketch12.addGeometry(Part.LineSegment(V(-100, -91, 0), V(-100, -101, 0)), False)
sketch12.addGeometry(Part.LineSegment(V(-100, -101, 0), V(-77, -101, 0)), False)
sketch12.addGeometry(Part.LineSegment(V(-77, -101, 0), V(-77, -91, 0)), False)
sketch12.addGeometry(Part.LineSegment(V(-77, -91, 0), V(-100, -91, 0)), False)
sketch12.addConstraint(Sketcher.Constraint("Coincident", 0, 2, 1, 1))
sketch12.addConstraint(Sketcher.Constraint("Coincident", 1, 2, 2, 1))
sketch12.addConstraint(Sketcher.Constraint("Coincident", 2, 2, 3, 1))
sketch12.addConstraint(Sketcher.Constraint("Coincident", 3, 2, 0, 1))
sketch12.addConstraint(Sketcher.Constraint("Vertical", 0))
sketch12.addConstraint(Sketcher.Constraint("Horizontal", 1))
sketch12.addConstraint(Sketcher.Constraint("Vertical", 2))
sketch12.addConstraint(Sketcher.Constraint("Horizontal", 3))
sketch12.addConstraint(Sketcher.Constraint("DistanceX", 1, 1, 1, 2, 23.0))
sketch12.addConstraint(Sketcher.Constraint("DistanceY", 0, 2, 0, 1, 9.82))
sketch12.addConstraint(Sketcher.Constraint("DistanceY", 0, 2, -1, 1, 101.07))
sketch12.addConstraint(Sketcher.Constraint("DistanceX", 0, 2, -1, 1, 100.376578))
pad11 = body.newObject("PartDesign::Pad", "Pad010")
pad11.Profile = sketch12
pad11.Length = 2.012239

# Sketch on an angled plane
sketch13 = body.newObject("Sketcher::SketchObject", "Sketch012")
sketch13.Placement = App.Placement(V(0.765385, 0, 8.748395), App.Rotation(V(-0.996194698, 0, 0.087155743), V(0, 1, 0), V(-0.087155743, 0, -0.996194698), "ZXY"))
sketch13.addGeometry(Part.LineSegment(V(11, 32, 0), V(11, 19, 0)), False)
sketch13.addGeometry(Part.LineSegment(V(11, 19, 0), V(34, 19, 0)), False)
sketch13.addGeometry(Part.LineSegment(V(34, 19, 0), V(34, 32, 0)), False)
sketch13.addGeometry(Part.LineSegment(V(34, 32, 0), V(11, 32, 0)), False)
sketch13.addConstraint(Sketcher.Constraint("Coincident", 0, 2, 1, 1))
sketch13.addConstraint(Sketcher.Constraint("Coincident", 1, 2, 2, 1))
sketch13.addConstraint(Sketcher.Constraint("Coincident", 2, 2, 3, 1))
sketch13.addConstraint(Sketcher.Constraint("Coincident", 3, 2, 0, 1))
sketch13.addConstraint(Sketcher.Constraint("Vertical", 0))
sketch13.addConstraint(Sketcher.Constraint("Horizontal", 1))
sketch13.addConstraint(Sketcher.Constraint("Vertical", 2))
sketch13.addConstraint(Sketcher.Constraint("Horizontal", 3))
sketch13.addConstraint(Sketcher.Constraint("DistanceX", 1, 1, 1, 2, 23.0))
sketch13.addConstraint(Sketcher.Constraint("DistanceY", 0, 2, 0, 1, 12.7))
sketch13.addConstraint(Sketcher.Constraint("DistanceY", -1, 1, 0, 2, 18.83))
sketch13.addConstraint(Sketcher.Constraint("DistanceX", -1, 1, 0, 2, 10.623422))
pad12 = body.newObject("PartDesign::Pad", "Pad011")
pad12.Profile = sketch13
pad12.Type = "UpToFirst"

# Sketch on an angled plane
sketch14 = body.newObject("Sketcher::SketchObject", "Sketch013")
sketch14.Placement = App.Placement(V(0.765385, 0, 8.748395), App.Rotation(V(-0.996194698, 0, 0.087155743), V(0, 1, 0), V(-0.087155743, 0, -0.996194698), "ZXY"))
sketch14.addGeometry(Part.LineSegment(V(11, -91, 0), V(11, -101, 0)), False)
sketch14.addGeometry(Part.LineSegment(V(11, -101, 0), V(34, -101, 0)), False)
sketch14.addGeometry(Part.LineSegment(V(34, -101, 0), V(34, -91, 0)), False)
sketch14.addGeometry(Part.LineSegment(V(34, -91, 0), V(11, -91, 0)), False)
sketch14.addConstraint(Sketcher.Constraint("Coincident", 0, 2, 1, 1))
sketch14.addConstraint(Sketcher.Constraint("Coincident", 1, 2, 2, 1))
sketch14.addConstraint(Sketcher.Constraint("Coincident", 2, 2, 3, 1))
sketch14.addConstraint(Sketcher.Constraint("Coincident", 3, 2, 0, 1))
sketch14.addConstraint(Sketcher.Constraint("Vertical", 0))
sketch14.addConstraint(Sketcher.Constraint("Horizontal", 1))
sketch14.addConstraint(Sketcher.Constraint("Vertical", 2))
sketch14.addConstraint(Sketcher.Constraint("Horizontal", 3))
sketch14.addConstraint(Sketcher.Constraint("DistanceX", 1, 1, 1, 2, 23.0))
sketch14.addConstraint(Sketcher.Constraint("DistanceY", 0, 2, 0, 1, 9.82))
sketch14.addConstraint(Sketcher.Constraint("DistanceY", 0, 2, -1, 1, 101.07))
sketch14.addConstraint(Sketcher.Constraint("DistanceX", -1, 1, 0, 2, 10.623422))
pad13 = body.newObject("PartDesign::Pad", "Pad012")
pad13.Profile = sketch14
pad13.Type = "UpToFirst"

# Sketch on an angled plane
sketch15 = body.newObject("Sketcher::SketchObject", "Sketch014")
sketch15.Placement = App.Placement(V(-33.495475, 0, 2.930474), App.Rotation(V(0.087155743, 0, 0.996194698), V(0, 1, 0), V(-0.996194698, 0, 0.087155743), "ZXY"))
sketch15.addGeometry(Part.LineSegment(V(18.8, -2, 0), V(13.8, -2, 0)), False)
sketch15.addGeometry(Part.LineSegment(V(13.8, -2, 0), V(13.8, -9, 0)), False)
sketch15.addGeometry(Part.LineSegment(V(13.8, -9, 0), V(18.8, -9, 0)), False)
sketch15.addGeometry(Part.ArcOfCircle(Part.Circle(V(18.8, -10, 0), V(0, 0, 1), 1), math.radians(0), math.radians(90)), False)
sketch15.addGeometry(Part.LineSegment(V(19.8, -10, 0), V(19.8, -11.5, 0)), False)
sketch15.addGeometry(Part.ArcOfCircle(Part.Circle(V(20.8, -11.5, 0), V(0, 0, 1), 1), math.radians(-180), math.radians(-90)), False)
sketch15.addGeometry(Part.LineSegment(V(20.8, -12.5, 0), V(24.8, -12.5, 0)), False)
sketch15.addGeometry(Part.ArcOfCircle(Part.Circle(V(24.8, -11.5, 0), V(0, 0, 1), 1), math.radians(-90), math.radians(0)), False)
sketch15.addGeometry(Part.LineSegment(V(25.8, -11.5, 0), V(25.8, 0.5, 0)), False)
sketch15.addGeometry(Part.ArcOfCircle(Part.Circle(V(24.8, 0.5, 0), V(0, 0, 1), 1), math.radians(0), math.radians(90)), False)
sketch15.addGeometry(Part.LineSegment(V(24.8, 1.5, 0), V(20.8, 1.5, 0)), False)
sketch15.addGeometry(Part.ArcOfCircle(Part.Circle(V(20.8, 0.5, 0), V(0, 0, 1), 1), math.radians(90), math.radians(180)), False)
sketch15.addGeometry(Part.LineSegment(V(19.8, 0.5, 0), V(19.8, -1, 0)), False)
sketch15.addGeometry(Part.ArcOfCircle(Part.Circle(V(18.8, -1, 0), V(0, 0, 1), 1), math.radians(-90), math.radians(0)), False)
sketch15.addGeometry(Part.LineSegment(V(13.8, -65, 0), V(13.8, -72, 0)), False)
sketch15.addGeometry(Part.LineSegment(V(13.8, -72, 0), V(18.8, -72, 0)), False)
sketch15.addGeometry(Part.ArcOfCircle(Part.Circle(V(18.8, -73, 0), V(0, 0, 1), 1), math.radians(0), math.radians(90)), False)
sketch15.addGeometry(Part.LineSegment(V(19.8, -73, 0), V(19.8, -74.5, 0)), False)
sketch15.addGeometry(Part.ArcOfCircle(Part.Circle(V(20.8, -74.5, 0), V(0, 0, 1), 1), math.radians(-180), math.radians(-90)), False)
sketch15.addGeometry(Part.LineSegment(V(20.8, -75.5, 0), V(24.8, -75.5, 0)), False)
sketch15.addGeometry(Part.ArcOfCircle(Part.Circle(V(24.8, -74.5, 0), V(0, 0, 1), 1), math.radians(-90), math.radians(0)), False)
sketch15.addGeometry(Part.LineSegment(V(25.8, -74.5, 0), V(25.8, -62.5, 0)), False)
sketch15.addGeometry(Part.ArcOfCircle(Part.Circle(V(24.8, -62.5, 0), V(0, 0, 1), 1), math.radians(0), math.radians(90)), False)
sketch15.addGeometry(Part.LineSegment(V(24.8, -61.5, 0), V(20.8, -61.5, 0)), False)
sketch15.addGeometry(Part.ArcOfCircle(Part.Circle(V(20.8, -62.5, 0), V(0, 0, 1), 1), math.radians(90), math.radians(180)), False)
sketch15.addGeometry(Part.LineSegment(V(19.8, -62.5, 0), V(19.8, -64, 0)), False)
sketch15.addGeometry(Part.ArcOfCircle(Part.Circle(V(18.8, -64, 0), V(0, 0, 1), 1), math.radians(-90), math.radians(0)), False)
sketch15.addGeometry(Part.LineSegment(V(18.8, -65, 0), V(13.8, -65, 0)), False)
sketch15.addConstraint(Sketcher.Constraint("Coincident", 0, 2, 1, 1))
sketch15.addConstraint(Sketcher.Constraint("Coincident", 1, 2, 2, 1))
sketch15.addConstraint(Sketcher.Constraint("Tangent", 2, 2, 3, 2))
sketch15.addConstraint(Sketcher.Constraint("Tangent", 3, 1, 4, 1))
sketch15.addConstraint(Sketcher.Constraint("Tangent", 4, 2, 5, 1))
sketch15.addConstraint(Sketcher.Constraint("Tangent", 5, 2, 6, 1))
sketch15.addConstraint(Sketcher.Constraint("Tangent", 6, 2, 7, 1))
sketch15.addConstraint(Sketcher.Constraint("Tangent", 7, 2, 8, 1))
sketch15.addConstraint(Sketcher.Constraint("Tangent", 8, 2, 9, 1))
sketch15.addConstraint(Sketcher.Constraint("Tangent", 9, 2, 10, 1))
sketch15.addConstraint(Sketcher.Constraint("Tangent", 10, 2, 11, 1))
sketch15.addConstraint(Sketcher.Constraint("Tangent", 11, 2, 12, 1))
sketch15.addConstraint(Sketcher.Constraint("Tangent", 12, 2, 13, 2))
sketch15.addConstraint(Sketcher.Constraint("Tangent", 13, 1, 0, 1))
sketch15.addConstraint(Sketcher.Constraint("Coincident", 14, 2, 15, 1))
sketch15.addConstraint(Sketcher.Constraint("Tangent", 15, 2, 16, 2))
sketch15.addConstraint(Sketcher.Constraint("Tangent", 16, 1, 17, 1))
sketch15.addConstraint(Sketcher.Constraint("Tangent", 17, 2, 18, 1))
sketch15.addConstraint(Sketcher.Constraint("Tangent", 18, 2, 19, 1))
sketch15.addConstraint(Sketcher.Constraint("Tangent", 19, 2, 20, 1))
sketch15.addConstraint(Sketcher.Constraint("Tangent", 20, 2, 21, 1))
sketch15.addConstraint(Sketcher.Constraint("Tangent", 21, 2, 22, 1))
sketch15.addConstraint(Sketcher.Constraint("Tangent", 22, 2, 23, 1))
sketch15.addConstraint(Sketcher.Constraint("Tangent", 23, 2, 24, 1))
sketch15.addConstraint(Sketcher.Constraint("Tangent", 24, 2, 25, 1))
sketch15.addConstraint(Sketcher.Constraint("Tangent", 25, 2, 26, 2))
sketch15.addConstraint(Sketcher.Constraint("Tangent", 26, 1, 27, 1))
sketch15.addConstraint(Sketcher.Constraint("Coincident", 27, 2, 14, 1))
sketch15.addConstraint(Sketcher.Constraint("Horizontal", 0))
sketch15.addConstraint(Sketcher.Constraint("Vertical", 1))
sketch15.addConstraint(Sketcher.Constraint("Horizontal", 2))
sketch15.addConstraint(Sketcher.Constraint("Vertical", 4))
sketch15.addConstraint(Sketcher.Constraint("Horizontal", 6))
sketch15.addConstraint(Sketcher.Constraint("Vertical", 8))
sketch15.addConstraint(Sketcher.Constraint("Horizontal", 10))
sketch15.addConstraint(Sketcher.Constraint("Vertical", 12))
sketch15.addConstraint(Sketcher.Constraint("Vertical", 14))
sketch15.addConstraint(Sketcher.Constraint("Horizontal", 15))
sketch15.addConstraint(Sketcher.Constraint("Vertical", 17))
sketch15.addConstraint(Sketcher.Constraint("Horizontal", 19))
sketch15.addConstraint(Sketcher.Constraint("Vertical", 21))
sketch15.addConstraint(Sketcher.Constraint("Horizontal", 23))
sketch15.addConstraint(Sketcher.Constraint("Vertical", 25))
sketch15.addConstraint(Sketcher.Constraint("Horizontal", 27))
sketch15.addConstraint(Sketcher.Constraint("Equal", 3, 5))
sketch15.addConstraint(Sketcher.Constraint("Equal", 5, 7))
sketch15.addConstraint(Sketcher.Constraint("Equal", 7, 9))
sketch15.addConstraint(Sketcher.Constraint("Equal", 9, 11))
sketch15.addConstraint(Sketcher.Constraint("Equal", 11, 13))
sketch15.addConstraint(Sketcher.Constraint("Equal", 13, 16))
sketch15.addConstraint(Sketcher.Constraint("Equal", 16, 18))
sketch15.addConstraint(Sketcher.Constraint("Equal", 18, 20))
sketch15.addConstraint(Sketcher.Constraint("Equal", 20, 22))
sketch15.addConstraint(Sketcher.Constraint("Equal", 22, 24))
sketch15.addConstraint(Sketcher.Constraint("Equal", 24, 26))
sketch15.addConstraint(Sketcher.Constraint("Vertical", 5, 3, 11, 3))
sketch15.addConstraint(Sketcher.Constraint("Vertical", 13, 3, 16, 3))
sketch15.addConstraint(Sketcher.Constraint("Vertical", 9, 3, 20, 3))
sketch15.addConstraint(Sketcher.Constraint("Vertical", 18, 3, 24, 3))
sketch15.addConstraint(Sketcher.Constraint("Vertical", 1, 2, 14, 2))
sketch15.addConstraint(Sketcher.Constraint("Equal", 4, 12))
sketch15.addConstraint(Sketcher.Constraint("Equal", 1, 14))
sketch15.addConstraint(Sketcher.Constraint("Equal", 12, 17))
sketch15.addConstraint(Sketcher.Constraint("Equal", 8, 21))
sketch15.addConstraint(Sketcher.Constraint("Radius", 3, 1.0))
sketch15.addConstraint(Sketcher.Constraint("DistanceX", 0, 2, 0, 1, 5.0))
sketch15.addConstraint(Sketcher.Constraint("DistanceX", 6, 1, 6, 2, 4.0))
sketch15.addConstraint(Sketcher.Constraint("DistanceY", 1, 2, 1, 1, 7.0))
sketch15.addConstraint(Sketcher.Constraint("DistanceY", 8, 1, 8, 2, 12.0))
sketch15.addConstraint(Sketcher.Constraint("DistanceY", 16, 3, 3, 3, 63.0))
sketch15.addConstraint(Sketcher.Constraint("DistanceY", 3, 3, -1, 1, 9.97))
sketch15.addConstraint(Sketcher.Constraint("DistanceX", -1, 1, 3, 3, 18.781813))
pad14 = body.newObject("PartDesign::Pad", "Pad013")
pad14.Profile = sketch15
pad14.Length = 23
pad14.Reversed = True

# Sketch on an angled plane
sketch16 = body.newObject("Sketcher::SketchObject", "Sketch015")
sketch16.Placement = App.Placement(V(77.082137, 0, -6.743813), App.Rotation(V(0.087155743, 0, 0.996194698), V(0, 1, 0), V(-0.996194698, 0, 0.087155743), "ZXY"))
sketch16.addGeometry(Part.LineSegment(V(19.8, 0.5, 0), V(19.8, -1, 0)), False)
sketch16.addGeometry(Part.ArcOfCircle(Part.Circle(V(18.8, -1, 0), V(0, 0, 1), 1), math.radians(-90), math.radians(0)), False)
sketch16.addGeometry(Part.LineSegment(V(18.8, -2, 0), V(13.8, -2, 0)), False)
sketch16.addGeometry(Part.LineSegment(V(13.8, -2, 0), V(13.8, -9, 0)), False)
sketch16.addGeometry(Part.LineSegment(V(13.8, -9, 0), V(18.8, -9, 0)), False)
sketch16.addGeometry(Part.ArcOfCircle(Part.Circle(V(18.8, -10, 0), V(0, 0, 1), 1), math.radians(0), math.radians(90)), False)
sketch16.addGeometry(Part.LineSegment(V(19.8, -10, 0), V(19.8, -11.5, 0)), False)
sketch16.addGeometry(Part.ArcOfCircle(Part.Circle(V(20.8, -11.5, 0), V(0, 0, 1), 1), math.radians(-180), math.radians(-90)), False)
sketch16.addGeometry(Part.LineSegment(V(20.8, -12.5, 0), V(24.8, -12.5, 0)), False)
sketch16.addGeometry(Part.ArcOfCircle(Part.Circle(V(24.8, -11.5, 0), V(0, 0, 1), 1), math.radians(-90), math.radians(0)), False)
sketch16.addGeometry(Part.LineSegment(V(25.8, -11.5, 0), V(25.8, 0.5, 0)), False)
sketch16.addGeometry(Part.ArcOfCircle(Part.Circle(V(24.8, 0.5, 0), V(0, 0, 1), 1), math.radians(0), math.radians(90)), False)
sketch16.addGeometry(Part.LineSegment(V(24.8, 1.5, 0), V(20.8, 1.5, 0)), False)
sketch16.addGeometry(Part.ArcOfCircle(Part.Circle(V(20.8, 0.5, 0), V(0, 0, 1), 1), math.radians(90), math.radians(180)), False)
sketch16.addGeometry(Part.LineSegment(V(19.8, -62.5, 0), V(19.8, -64, 0)), False)
sketch16.addGeometry(Part.ArcOfCircle(Part.Circle(V(18.8, -64, 0), V(0, 0, 1), 1), math.radians(-90), math.radians(0)), False)
sketch16.addGeometry(Part.LineSegment(V(18.8, -65, 0), V(13.8, -65, 0)), False)
sketch16.addGeometry(Part.LineSegment(V(13.8, -65, 0), V(13.8, -72, 0)), False)
sketch16.addGeometry(Part.LineSegment(V(13.8, -72, 0), V(18.8, -72, 0)), False)
sketch16.addGeometry(Part.ArcOfCircle(Part.Circle(V(18.8, -73, 0), V(0, 0, 1), 1), math.radians(0), math.radians(90)), False)
sketch16.addGeometry(Part.LineSegment(V(19.8, -73, 0), V(19.8, -74.5, 0)), False)
sketch16.addGeometry(Part.ArcOfCircle(Part.Circle(V(20.8, -74.5, 0), V(0, 0, 1), 1), math.radians(-180), math.radians(-90)), False)
sketch16.addGeometry(Part.LineSegment(V(20.8, -75.5, 0), V(24.8, -75.5, 0)), False)
sketch16.addGeometry(Part.ArcOfCircle(Part.Circle(V(24.8, -74.5, 0), V(0, 0, 1), 1), math.radians(-90), math.radians(0)), False)
sketch16.addGeometry(Part.LineSegment(V(25.8, -74.5, 0), V(25.8, -62.5, 0)), False)
sketch16.addGeometry(Part.ArcOfCircle(Part.Circle(V(24.8, -62.5, 0), V(0, 0, 1), 1), math.radians(0), math.radians(90)), False)
sketch16.addGeometry(Part.LineSegment(V(24.8, -61.5, 0), V(20.8, -61.5, 0)), False)
sketch16.addGeometry(Part.ArcOfCircle(Part.Circle(V(20.8, -62.5, 0), V(0, 0, 1), 1), math.radians(90), math.radians(180)), False)
sketch16.addConstraint(Sketcher.Constraint("Tangent", 0, 2, 1, 2))
sketch16.addConstraint(Sketcher.Constraint("Tangent", 1, 1, 2, 1))
sketch16.addConstraint(Sketcher.Constraint("Coincident", 2, 2, 3, 1))
sketch16.addConstraint(Sketcher.Constraint("Coincident", 3, 2, 4, 1))
sketch16.addConstraint(Sketcher.Constraint("Tangent", 4, 2, 5, 2))
sketch16.addConstraint(Sketcher.Constraint("Tangent", 5, 1, 6, 1))
sketch16.addConstraint(Sketcher.Constraint("Tangent", 6, 2, 7, 1))
sketch16.addConstraint(Sketcher.Constraint("Tangent", 7, 2, 8, 1))
sketch16.addConstraint(Sketcher.Constraint("Tangent", 8, 2, 9, 1))
sketch16.addConstraint(Sketcher.Constraint("Tangent", 9, 2, 10, 1))
sketch16.addConstraint(Sketcher.Constraint("Tangent", 10, 2, 11, 1))
sketch16.addConstraint(Sketcher.Constraint("Tangent", 11, 2, 12, 1))
sketch16.addConstraint(Sketcher.Constraint("Tangent", 12, 2, 13, 1))
sketch16.addConstraint(Sketcher.Constraint("Tangent", 13, 2, 0, 1))
sketch16.addConstraint(Sketcher.Constraint("Tangent", 14, 2, 15, 2))
sketch16.addConstraint(Sketcher.Constraint("Tangent", 15, 1, 16, 1))
sketch16.addConstraint(Sketcher.Constraint("Coincident", 16, 2, 17, 1))
sketch16.addConstraint(Sketcher.Constraint("Coincident", 17, 2, 18, 1))
sketch16.addConstraint(Sketcher.Constraint("Tangent", 18, 2, 19, 2))
sketch16.addConstraint(Sketcher.Constraint("Tangent", 19, 1, 20, 1))
sketch16.addConstraint(Sketcher.Constraint("Tangent", 20, 2, 21, 1))
sketch16.addConstraint(Sketcher.Constraint("Tangent", 21, 2, 22, 1))
sketch16.addConstraint(Sketcher.Constraint("Tangent", 22, 2, 23, 1))
sketch16.addConstraint(Sketcher.Constraint("Tangent", 23, 2, 24, 1))
sketch16.addConstraint(Sketcher.Constraint("Tangent", 24, 2, 25, 1))
sketch16.addConstraint(Sketcher.Constraint("Tangent", 25, 2, 26, 1))
sketch16.addConstraint(Sketcher.Constraint("Tangent", 26, 2, 27, 1))
sketch16.addConstraint(Sketcher.Constraint("Tangent", 27, 2, 14, 1))
sketch16.addConstraint(Sketcher.Constraint("Vertical", 0))
sketch16.addConstraint(Sketcher.Constraint("Horizontal", 2))
sketch16.addConstraint(Sketcher.Constraint("Vertical", 3))
sketch16.addConstraint(Sketcher.Constraint("Horizontal", 4))
sketch16.addConstraint(Sketcher.Constraint("Vertical", 6))
sketch16.addConstraint(Sketcher.Constraint("Horizontal", 8))
sketch16.addConstraint(Sketcher.Constraint("Vertical", 10))
sketch16.addConstraint(Sketcher.Constraint("Horizontal", 12))
sketch16.addConstraint(Sketcher.Constraint("Vertical", 14))
sketch16.addConstraint(Sketcher.Constraint("Horizontal", 16))
sketch16.addConstraint(Sketcher.Constraint("Vertical", 17))
sketch16.addConstraint(Sketcher.Constraint("Horizontal", 18))
sketch16.addConstraint(Sketcher.Constraint("Vertical", 20))
sketch16.addConstraint(Sketcher.Constraint("Horizontal", 22))
sketch16.addConstraint(Sketcher.Constraint("Vertical", 24))
sketch16.addConstraint(Sketcher.Constraint("Horizontal", 26))
sketch16.addConstraint(Sketcher.Constraint("Equal", 1, 5))
sketch16.addConstraint(Sketcher.Constraint("Equal", 5, 7))
sketch16.addConstraint(Sketcher.Constraint("Equal", 7, 9))
sketch16.addConstraint(Sketcher.Constraint("Equal", 9, 11))
sketch16.addConstraint(Sketcher.Constraint("Equal", 11, 13))
sketch16.addConstraint(Sketcher.Constraint("Equal", 13, 15))
sketch16.addConstraint(Sketcher.Constraint("Equal", 15, 19))
sketch16.addConstraint(Sketcher.Constraint("Equal", 19, 21))
sketch16.addConstraint(Sketcher.Constraint("Equal", 21, 23))
sketch16.addConstraint(Sketcher.Constraint("Equal", 23, 25))
sketch16.addConstraint(Sketcher.Constraint("Equal", 25, 27))
sketch16.addConstraint(Sketcher.Constraint("Vertical", 1, 3, 5, 3))
sketch16.addConstraint(Sketcher.Constraint("Vertical", 5, 3, 15, 3))
sketch16.addConstraint(Sketcher.Constraint("Vertical", 15, 3, 19, 3))
sketch16.addConstraint(Sketcher.Constraint("Vertical", 11, 3, 23, 3))
sketch16.addConstraint(Sketcher.Constraint("Vertical", 3, 2, 16, 2))
sketch16.addConstraint(Sketcher.Constraint("Equal", 0, 6))
sketch16.addConstraint(Sketcher.Constraint("Equal", 6, 14))
sketch16.addConstraint(Sketcher.Constraint("Equal", 3, 17))
sketch16.addConstraint(Sketcher.Constraint("Equal", 14, 20))
sketch16.addConstraint(Sketcher.Constraint("Radius", 1, 1.0))
sketch16.addConstraint(Sketcher.Constraint("DistanceX", 2, 2, 2, 1, 5.0))
sketch16.addConstraint(Sketcher.Constraint("DistanceX", 8, 1, 8, 2, 4.0))
sketch16.addConstraint(Sketcher.Constraint("DistanceY", 3, 2, 3, 1, 7.0))
sketch16.addConstraint(Sketcher.Constraint("DistanceY", 10, 1, 10, 2, 12.0))
sketch16.addConstraint(Sketcher.Constraint("DistanceY", 15, 3, 5, 3, 54.0))
sketch16.addConstraint(Sketcher.Constraint("DistanceY", 1, 3, -1, 1, 0.97))
sketch16.addConstraint(Sketcher.Constraint("DistanceX", -1, 1, 1, 3, 18.781813))
pad15 = body.newObject("PartDesign::Pad", "Pad014")
pad15.Profile = sketch16
pad15.Length = 23
pad15.Reversed = True

doc.recompute()
